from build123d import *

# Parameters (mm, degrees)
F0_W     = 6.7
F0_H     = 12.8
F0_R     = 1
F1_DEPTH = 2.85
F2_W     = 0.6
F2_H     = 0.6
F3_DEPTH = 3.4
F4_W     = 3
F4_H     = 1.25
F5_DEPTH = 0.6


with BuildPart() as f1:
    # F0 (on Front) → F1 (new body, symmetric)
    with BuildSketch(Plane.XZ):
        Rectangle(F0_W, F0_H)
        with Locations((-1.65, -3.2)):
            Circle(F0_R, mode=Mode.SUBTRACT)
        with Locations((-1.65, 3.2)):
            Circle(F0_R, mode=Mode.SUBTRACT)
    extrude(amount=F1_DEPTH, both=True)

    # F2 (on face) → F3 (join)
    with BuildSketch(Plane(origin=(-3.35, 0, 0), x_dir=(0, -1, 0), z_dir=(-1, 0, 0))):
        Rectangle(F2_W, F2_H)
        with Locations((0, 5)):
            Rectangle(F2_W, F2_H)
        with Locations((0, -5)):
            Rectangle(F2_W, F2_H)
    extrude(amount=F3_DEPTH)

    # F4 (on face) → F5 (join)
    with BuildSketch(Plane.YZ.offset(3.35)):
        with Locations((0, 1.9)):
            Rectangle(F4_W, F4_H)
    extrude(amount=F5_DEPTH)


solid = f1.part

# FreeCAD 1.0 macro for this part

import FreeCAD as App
import Part
import Sketcher
from FreeCAD import Vector
Q = App.Units.Quantity

doc = App.newDocument("Part")
body = doc.addObject("PartDesign::Body", "Body")

sketch1 = doc.addObject("Sketcher::SketchObject", "Sketch")
body.addObject(sketch1)
sketch1.AttachmentSupport = (doc.XZ_Plane, [""])
sketch1.MapMode = "FlatFace"
sketch1.addGeometry([
    Part.LineSegment(Vector(-3.4, 6.4, 0), Vector(-3.4, -6.4, 0)),
    Part.LineSegment(Vector(-3.4, -6.4, 0), Vector(3.4, -6.4, 0)),
    Part.LineSegment(Vector(3.4, -6.4, 0), Vector(3.4, 6.4, 0)),
    Part.LineSegment(Vector(3.4, 6.4, 0), Vector(-3.4, 6.4, 0)),
    Part.Circle(Vector(-1.6, -3.2, 0), Vector(0, 0, 1), 1),
    Part.Circle(Vector(-1.6, 3.2, 0), Vector(0, 0, 1), 1),
], False)
sketch1.addConstraint([
    Sketcher.Constraint("Coincident", 0, 2, 1, 1),
    Sketcher.Constraint("Coincident", 1, 2, 2, 1),
    Sketcher.Constraint("Coincident", 2, 2, 3, 1),
    Sketcher.Constraint("Coincident", 3, 2, 0, 1),
    Sketcher.Constraint("Vertical", 0),
    Sketcher.Constraint("Horizontal", 1),
    Sketcher.Constraint("Vertical", 2),
    Sketcher.Constraint("Horizontal", 3),
    Sketcher.Constraint("Equal", 4, 5),
    Sketcher.Constraint("Symmetric", 0, 2, 2, 2, -1, 1),
    Sketcher.Constraint("Symmetric", 4, 3, 5, 3, -1),
    Sketcher.Constraint("Diameter", 4, Q("2 mm")),
    Sketcher.Constraint("DistanceX", 1, 1, 1, 2, Q("6.7 mm")),
    Sketcher.Constraint("DistanceY", 0, 2, 0, 1, Q("12.8 mm")),
    Sketcher.Constraint("DistanceX", 4, 3, 1, 2, Q("5 mm")),
    Sketcher.Constraint("DistanceY", 4, 3, -1, 1, Q("3.2 mm")),
])
pad1 = doc.addObject("PartDesign::Pad", "Pad")
body.addObject(pad1)
pad1.Profile = sketch1
pad1.Length = 5.7
pad1.Midplane = True

sketch2 = doc.addObject("Sketcher::SketchObject", "Sketch001")
body.addObject(sketch2)
sketch2.AttachmentSupport = (doc.YZ_Plane, [""])
sketch2.MapMode = "FlatFace"
sketch2.AttachmentOffset = App.Placement(Vector(0, 0, -3.35), App.Rotation())
sketch2.addGeometry([
    Part.LineSegment(Vector(0.3, 0.3, 0), Vector(0.3, -0.3, 0)),
    Part.LineSegment(Vector(0.3, -0.3, 0), Vector(-0.3, -0.3, 0)),
    Part.LineSegment(Vector(-0.3, -0.3, 0), Vector(-0.3, 0.3, 0)),
    Part.LineSegment(Vector(-0.3, 0.3, 0), Vector(0.3, 0.3, 0)),
    Part.LineSegment(Vector(0.3, 5.3, 0), Vector(0.3, 4.7, 0)),
    Part.LineSegment(Vector(0.3, 4.7, 0), Vector(-0.3, 4.7, 0)),
    Part.LineSegment(Vector(-0.3, 4.7, 0), Vector(-0.3, 5.3, 0)),
    Part.LineSegment(Vector(-0.3, 5.3, 0), Vector(0.3, 5.3, 0)),
    Part.LineSegment(Vector(0.3, -4.7, 0), Vector(0.3, -5.3, 0)),
    Part.LineSegment(Vector(0.3, -5.3, 0), Vector(-0.3, -5.3, 0)),
    Part.LineSegment(Vector(-0.3, -5.3, 0), Vector(-0.3, -4.7, 0)),
    Part.LineSegment(Vector(-0.3, -4.7, 0), Vector(0.3, -4.7, 0)),
], False)
sketch2.addConstraint([
    Sketcher.Constraint("Coincident", 0, 2, 1, 1),
    Sketcher.Constraint("Coincident", 1, 2, 2, 1),
    Sketcher.Constraint("Coincident", 2, 2, 3, 1),
    Sketcher.Constraint("Coincident", 3, 2, 0, 1),
    Sketcher.Constraint("Coincident", 4, 2, 5, 1),
    Sketcher.Constraint("Coincident", 5, 2, 6, 1),
    Sketcher.Constraint("Coincident", 6, 2, 7, 1),
    Sketcher.Constraint("Coincident", 7, 2, 4, 1),
    Sketcher.Constraint("Coincident", 8, 2, 9, 1),
    Sketcher.Constraint("Coincident", 9, 2, 10, 1),
    Sketcher.Constraint("Coincident", 10, 2, 11, 1),
    Sketcher.Constraint("Coincident", 11, 2, 8, 1),
    Sketcher.Constraint("Vertical", 0),
    Sketcher.Constraint("Horizontal", 1),
    Sketcher.Constraint("Vertical", 2),
    Sketcher.Constraint("Horizontal", 3),
    Sketcher.Constraint("Vertical", 4),
    Sketcher.Constraint("Horizontal", 5),
    Sketcher.Constraint("Vertical", 6),
    Sketcher.Constraint("Horizontal", 7),
    Sketcher.Constraint("Vertical", 8),
    Sketcher.Constraint("Horizontal", 9),
    Sketcher.Constraint("Vertical", 10),
    Sketcher.Constraint("Horizontal", 11),
    Sketcher.Constraint("Symmetric", 0, 2, 2, 2, -1, 1),
    Sketcher.Constraint("Symmetric", 6, 2, 8, 2, -1, 1),
    Sketcher.Constraint("Symmetric", 4, 2, 10, 2, -1, 1),
    Sketcher.Constraint("Vertical", 3, 2, 4, 2),
    Sketcher.Constraint("Vertical", 2, 2, 5, 2),
    Sketcher.Constraint("Equal", 11, 0),
    Sketcher.Constraint("Equal", 2, 4),
    Sketcher.Constraint("DistanceX", 1, 2, 1, 1, Q("0.6 mm")),
    Sketcher.Constraint("DistanceY", 0, 2, 4, 2, Q("5 mm")),
])
pad2 = doc.addObject("PartDesign::Pad", "Pad001")
body.addObject(pad2)
pad2.Profile = sketch2
pad2.Length = 3.4
pad2.Reversed = True

sketch3 = doc.addObject("Sketcher::SketchObject", "Sketch002")
body.addObject(sketch3)
sketch3.AttachmentSupport = (doc.YZ_Plane, [""])
sketch3.MapMode = "FlatFace"
sketch3.AttachmentOffset = App.Placement(Vector(0, 0, 3.35), App.Rotation())
sketch3.addGeometry([
    Part.LineSegment(Vector(-1.5, 2.5, 0), Vector(-1.5, 1.3, 0)),
    Part.LineSegment(Vector(-1.5, 1.3, 0), Vector(1.5, 1.3, 0)),
    Part.LineSegment(Vector(1.5, 1.3, 0), Vector(1.5, 2.5, 0)),
    Part.LineSegment(Vector(1.5, 2.5, 0), Vector(-1.5, 2.5, 0)),
], False)
sketch3.addConstraint([
    Sketcher.Constraint("Coincident", 0, 2, 1, 1),
    Sketcher.Constraint("Coincident", 1, 2, 2, 1),
    Sketcher.Constraint("Coincident", 2, 2, 3, 1),
    Sketcher.Constraint("Coincident", 3, 2, 0, 1),
    Sketcher.Constraint("Vertical", 0),
    Sketcher.Constraint("Horizontal", 1),
    Sketcher.Constraint("Vertical", 2),
    Sketcher.Constraint("Horizontal", 3),
    Sketcher.Constraint("DistanceX", 1, 1, 1, 2, Q("3 mm")),
    Sketcher.Constraint("DistanceY", 0, 2, 0, 1, Q("1.25 mm")),
    Sketcher.Constraint("DistanceX", 0, 2, -1, 1, Q("1.5 mm")),
    Sketcher.Constraint("DistanceY", -1, 1, 0, 2, Q("1.275 mm")),
])
pad3 = doc.addObject("PartDesign::Pad", "Pad002")
body.addObject(pad3)
pad3.Profile = sketch3
pad3.Length = 0.6

doc.recompute()
